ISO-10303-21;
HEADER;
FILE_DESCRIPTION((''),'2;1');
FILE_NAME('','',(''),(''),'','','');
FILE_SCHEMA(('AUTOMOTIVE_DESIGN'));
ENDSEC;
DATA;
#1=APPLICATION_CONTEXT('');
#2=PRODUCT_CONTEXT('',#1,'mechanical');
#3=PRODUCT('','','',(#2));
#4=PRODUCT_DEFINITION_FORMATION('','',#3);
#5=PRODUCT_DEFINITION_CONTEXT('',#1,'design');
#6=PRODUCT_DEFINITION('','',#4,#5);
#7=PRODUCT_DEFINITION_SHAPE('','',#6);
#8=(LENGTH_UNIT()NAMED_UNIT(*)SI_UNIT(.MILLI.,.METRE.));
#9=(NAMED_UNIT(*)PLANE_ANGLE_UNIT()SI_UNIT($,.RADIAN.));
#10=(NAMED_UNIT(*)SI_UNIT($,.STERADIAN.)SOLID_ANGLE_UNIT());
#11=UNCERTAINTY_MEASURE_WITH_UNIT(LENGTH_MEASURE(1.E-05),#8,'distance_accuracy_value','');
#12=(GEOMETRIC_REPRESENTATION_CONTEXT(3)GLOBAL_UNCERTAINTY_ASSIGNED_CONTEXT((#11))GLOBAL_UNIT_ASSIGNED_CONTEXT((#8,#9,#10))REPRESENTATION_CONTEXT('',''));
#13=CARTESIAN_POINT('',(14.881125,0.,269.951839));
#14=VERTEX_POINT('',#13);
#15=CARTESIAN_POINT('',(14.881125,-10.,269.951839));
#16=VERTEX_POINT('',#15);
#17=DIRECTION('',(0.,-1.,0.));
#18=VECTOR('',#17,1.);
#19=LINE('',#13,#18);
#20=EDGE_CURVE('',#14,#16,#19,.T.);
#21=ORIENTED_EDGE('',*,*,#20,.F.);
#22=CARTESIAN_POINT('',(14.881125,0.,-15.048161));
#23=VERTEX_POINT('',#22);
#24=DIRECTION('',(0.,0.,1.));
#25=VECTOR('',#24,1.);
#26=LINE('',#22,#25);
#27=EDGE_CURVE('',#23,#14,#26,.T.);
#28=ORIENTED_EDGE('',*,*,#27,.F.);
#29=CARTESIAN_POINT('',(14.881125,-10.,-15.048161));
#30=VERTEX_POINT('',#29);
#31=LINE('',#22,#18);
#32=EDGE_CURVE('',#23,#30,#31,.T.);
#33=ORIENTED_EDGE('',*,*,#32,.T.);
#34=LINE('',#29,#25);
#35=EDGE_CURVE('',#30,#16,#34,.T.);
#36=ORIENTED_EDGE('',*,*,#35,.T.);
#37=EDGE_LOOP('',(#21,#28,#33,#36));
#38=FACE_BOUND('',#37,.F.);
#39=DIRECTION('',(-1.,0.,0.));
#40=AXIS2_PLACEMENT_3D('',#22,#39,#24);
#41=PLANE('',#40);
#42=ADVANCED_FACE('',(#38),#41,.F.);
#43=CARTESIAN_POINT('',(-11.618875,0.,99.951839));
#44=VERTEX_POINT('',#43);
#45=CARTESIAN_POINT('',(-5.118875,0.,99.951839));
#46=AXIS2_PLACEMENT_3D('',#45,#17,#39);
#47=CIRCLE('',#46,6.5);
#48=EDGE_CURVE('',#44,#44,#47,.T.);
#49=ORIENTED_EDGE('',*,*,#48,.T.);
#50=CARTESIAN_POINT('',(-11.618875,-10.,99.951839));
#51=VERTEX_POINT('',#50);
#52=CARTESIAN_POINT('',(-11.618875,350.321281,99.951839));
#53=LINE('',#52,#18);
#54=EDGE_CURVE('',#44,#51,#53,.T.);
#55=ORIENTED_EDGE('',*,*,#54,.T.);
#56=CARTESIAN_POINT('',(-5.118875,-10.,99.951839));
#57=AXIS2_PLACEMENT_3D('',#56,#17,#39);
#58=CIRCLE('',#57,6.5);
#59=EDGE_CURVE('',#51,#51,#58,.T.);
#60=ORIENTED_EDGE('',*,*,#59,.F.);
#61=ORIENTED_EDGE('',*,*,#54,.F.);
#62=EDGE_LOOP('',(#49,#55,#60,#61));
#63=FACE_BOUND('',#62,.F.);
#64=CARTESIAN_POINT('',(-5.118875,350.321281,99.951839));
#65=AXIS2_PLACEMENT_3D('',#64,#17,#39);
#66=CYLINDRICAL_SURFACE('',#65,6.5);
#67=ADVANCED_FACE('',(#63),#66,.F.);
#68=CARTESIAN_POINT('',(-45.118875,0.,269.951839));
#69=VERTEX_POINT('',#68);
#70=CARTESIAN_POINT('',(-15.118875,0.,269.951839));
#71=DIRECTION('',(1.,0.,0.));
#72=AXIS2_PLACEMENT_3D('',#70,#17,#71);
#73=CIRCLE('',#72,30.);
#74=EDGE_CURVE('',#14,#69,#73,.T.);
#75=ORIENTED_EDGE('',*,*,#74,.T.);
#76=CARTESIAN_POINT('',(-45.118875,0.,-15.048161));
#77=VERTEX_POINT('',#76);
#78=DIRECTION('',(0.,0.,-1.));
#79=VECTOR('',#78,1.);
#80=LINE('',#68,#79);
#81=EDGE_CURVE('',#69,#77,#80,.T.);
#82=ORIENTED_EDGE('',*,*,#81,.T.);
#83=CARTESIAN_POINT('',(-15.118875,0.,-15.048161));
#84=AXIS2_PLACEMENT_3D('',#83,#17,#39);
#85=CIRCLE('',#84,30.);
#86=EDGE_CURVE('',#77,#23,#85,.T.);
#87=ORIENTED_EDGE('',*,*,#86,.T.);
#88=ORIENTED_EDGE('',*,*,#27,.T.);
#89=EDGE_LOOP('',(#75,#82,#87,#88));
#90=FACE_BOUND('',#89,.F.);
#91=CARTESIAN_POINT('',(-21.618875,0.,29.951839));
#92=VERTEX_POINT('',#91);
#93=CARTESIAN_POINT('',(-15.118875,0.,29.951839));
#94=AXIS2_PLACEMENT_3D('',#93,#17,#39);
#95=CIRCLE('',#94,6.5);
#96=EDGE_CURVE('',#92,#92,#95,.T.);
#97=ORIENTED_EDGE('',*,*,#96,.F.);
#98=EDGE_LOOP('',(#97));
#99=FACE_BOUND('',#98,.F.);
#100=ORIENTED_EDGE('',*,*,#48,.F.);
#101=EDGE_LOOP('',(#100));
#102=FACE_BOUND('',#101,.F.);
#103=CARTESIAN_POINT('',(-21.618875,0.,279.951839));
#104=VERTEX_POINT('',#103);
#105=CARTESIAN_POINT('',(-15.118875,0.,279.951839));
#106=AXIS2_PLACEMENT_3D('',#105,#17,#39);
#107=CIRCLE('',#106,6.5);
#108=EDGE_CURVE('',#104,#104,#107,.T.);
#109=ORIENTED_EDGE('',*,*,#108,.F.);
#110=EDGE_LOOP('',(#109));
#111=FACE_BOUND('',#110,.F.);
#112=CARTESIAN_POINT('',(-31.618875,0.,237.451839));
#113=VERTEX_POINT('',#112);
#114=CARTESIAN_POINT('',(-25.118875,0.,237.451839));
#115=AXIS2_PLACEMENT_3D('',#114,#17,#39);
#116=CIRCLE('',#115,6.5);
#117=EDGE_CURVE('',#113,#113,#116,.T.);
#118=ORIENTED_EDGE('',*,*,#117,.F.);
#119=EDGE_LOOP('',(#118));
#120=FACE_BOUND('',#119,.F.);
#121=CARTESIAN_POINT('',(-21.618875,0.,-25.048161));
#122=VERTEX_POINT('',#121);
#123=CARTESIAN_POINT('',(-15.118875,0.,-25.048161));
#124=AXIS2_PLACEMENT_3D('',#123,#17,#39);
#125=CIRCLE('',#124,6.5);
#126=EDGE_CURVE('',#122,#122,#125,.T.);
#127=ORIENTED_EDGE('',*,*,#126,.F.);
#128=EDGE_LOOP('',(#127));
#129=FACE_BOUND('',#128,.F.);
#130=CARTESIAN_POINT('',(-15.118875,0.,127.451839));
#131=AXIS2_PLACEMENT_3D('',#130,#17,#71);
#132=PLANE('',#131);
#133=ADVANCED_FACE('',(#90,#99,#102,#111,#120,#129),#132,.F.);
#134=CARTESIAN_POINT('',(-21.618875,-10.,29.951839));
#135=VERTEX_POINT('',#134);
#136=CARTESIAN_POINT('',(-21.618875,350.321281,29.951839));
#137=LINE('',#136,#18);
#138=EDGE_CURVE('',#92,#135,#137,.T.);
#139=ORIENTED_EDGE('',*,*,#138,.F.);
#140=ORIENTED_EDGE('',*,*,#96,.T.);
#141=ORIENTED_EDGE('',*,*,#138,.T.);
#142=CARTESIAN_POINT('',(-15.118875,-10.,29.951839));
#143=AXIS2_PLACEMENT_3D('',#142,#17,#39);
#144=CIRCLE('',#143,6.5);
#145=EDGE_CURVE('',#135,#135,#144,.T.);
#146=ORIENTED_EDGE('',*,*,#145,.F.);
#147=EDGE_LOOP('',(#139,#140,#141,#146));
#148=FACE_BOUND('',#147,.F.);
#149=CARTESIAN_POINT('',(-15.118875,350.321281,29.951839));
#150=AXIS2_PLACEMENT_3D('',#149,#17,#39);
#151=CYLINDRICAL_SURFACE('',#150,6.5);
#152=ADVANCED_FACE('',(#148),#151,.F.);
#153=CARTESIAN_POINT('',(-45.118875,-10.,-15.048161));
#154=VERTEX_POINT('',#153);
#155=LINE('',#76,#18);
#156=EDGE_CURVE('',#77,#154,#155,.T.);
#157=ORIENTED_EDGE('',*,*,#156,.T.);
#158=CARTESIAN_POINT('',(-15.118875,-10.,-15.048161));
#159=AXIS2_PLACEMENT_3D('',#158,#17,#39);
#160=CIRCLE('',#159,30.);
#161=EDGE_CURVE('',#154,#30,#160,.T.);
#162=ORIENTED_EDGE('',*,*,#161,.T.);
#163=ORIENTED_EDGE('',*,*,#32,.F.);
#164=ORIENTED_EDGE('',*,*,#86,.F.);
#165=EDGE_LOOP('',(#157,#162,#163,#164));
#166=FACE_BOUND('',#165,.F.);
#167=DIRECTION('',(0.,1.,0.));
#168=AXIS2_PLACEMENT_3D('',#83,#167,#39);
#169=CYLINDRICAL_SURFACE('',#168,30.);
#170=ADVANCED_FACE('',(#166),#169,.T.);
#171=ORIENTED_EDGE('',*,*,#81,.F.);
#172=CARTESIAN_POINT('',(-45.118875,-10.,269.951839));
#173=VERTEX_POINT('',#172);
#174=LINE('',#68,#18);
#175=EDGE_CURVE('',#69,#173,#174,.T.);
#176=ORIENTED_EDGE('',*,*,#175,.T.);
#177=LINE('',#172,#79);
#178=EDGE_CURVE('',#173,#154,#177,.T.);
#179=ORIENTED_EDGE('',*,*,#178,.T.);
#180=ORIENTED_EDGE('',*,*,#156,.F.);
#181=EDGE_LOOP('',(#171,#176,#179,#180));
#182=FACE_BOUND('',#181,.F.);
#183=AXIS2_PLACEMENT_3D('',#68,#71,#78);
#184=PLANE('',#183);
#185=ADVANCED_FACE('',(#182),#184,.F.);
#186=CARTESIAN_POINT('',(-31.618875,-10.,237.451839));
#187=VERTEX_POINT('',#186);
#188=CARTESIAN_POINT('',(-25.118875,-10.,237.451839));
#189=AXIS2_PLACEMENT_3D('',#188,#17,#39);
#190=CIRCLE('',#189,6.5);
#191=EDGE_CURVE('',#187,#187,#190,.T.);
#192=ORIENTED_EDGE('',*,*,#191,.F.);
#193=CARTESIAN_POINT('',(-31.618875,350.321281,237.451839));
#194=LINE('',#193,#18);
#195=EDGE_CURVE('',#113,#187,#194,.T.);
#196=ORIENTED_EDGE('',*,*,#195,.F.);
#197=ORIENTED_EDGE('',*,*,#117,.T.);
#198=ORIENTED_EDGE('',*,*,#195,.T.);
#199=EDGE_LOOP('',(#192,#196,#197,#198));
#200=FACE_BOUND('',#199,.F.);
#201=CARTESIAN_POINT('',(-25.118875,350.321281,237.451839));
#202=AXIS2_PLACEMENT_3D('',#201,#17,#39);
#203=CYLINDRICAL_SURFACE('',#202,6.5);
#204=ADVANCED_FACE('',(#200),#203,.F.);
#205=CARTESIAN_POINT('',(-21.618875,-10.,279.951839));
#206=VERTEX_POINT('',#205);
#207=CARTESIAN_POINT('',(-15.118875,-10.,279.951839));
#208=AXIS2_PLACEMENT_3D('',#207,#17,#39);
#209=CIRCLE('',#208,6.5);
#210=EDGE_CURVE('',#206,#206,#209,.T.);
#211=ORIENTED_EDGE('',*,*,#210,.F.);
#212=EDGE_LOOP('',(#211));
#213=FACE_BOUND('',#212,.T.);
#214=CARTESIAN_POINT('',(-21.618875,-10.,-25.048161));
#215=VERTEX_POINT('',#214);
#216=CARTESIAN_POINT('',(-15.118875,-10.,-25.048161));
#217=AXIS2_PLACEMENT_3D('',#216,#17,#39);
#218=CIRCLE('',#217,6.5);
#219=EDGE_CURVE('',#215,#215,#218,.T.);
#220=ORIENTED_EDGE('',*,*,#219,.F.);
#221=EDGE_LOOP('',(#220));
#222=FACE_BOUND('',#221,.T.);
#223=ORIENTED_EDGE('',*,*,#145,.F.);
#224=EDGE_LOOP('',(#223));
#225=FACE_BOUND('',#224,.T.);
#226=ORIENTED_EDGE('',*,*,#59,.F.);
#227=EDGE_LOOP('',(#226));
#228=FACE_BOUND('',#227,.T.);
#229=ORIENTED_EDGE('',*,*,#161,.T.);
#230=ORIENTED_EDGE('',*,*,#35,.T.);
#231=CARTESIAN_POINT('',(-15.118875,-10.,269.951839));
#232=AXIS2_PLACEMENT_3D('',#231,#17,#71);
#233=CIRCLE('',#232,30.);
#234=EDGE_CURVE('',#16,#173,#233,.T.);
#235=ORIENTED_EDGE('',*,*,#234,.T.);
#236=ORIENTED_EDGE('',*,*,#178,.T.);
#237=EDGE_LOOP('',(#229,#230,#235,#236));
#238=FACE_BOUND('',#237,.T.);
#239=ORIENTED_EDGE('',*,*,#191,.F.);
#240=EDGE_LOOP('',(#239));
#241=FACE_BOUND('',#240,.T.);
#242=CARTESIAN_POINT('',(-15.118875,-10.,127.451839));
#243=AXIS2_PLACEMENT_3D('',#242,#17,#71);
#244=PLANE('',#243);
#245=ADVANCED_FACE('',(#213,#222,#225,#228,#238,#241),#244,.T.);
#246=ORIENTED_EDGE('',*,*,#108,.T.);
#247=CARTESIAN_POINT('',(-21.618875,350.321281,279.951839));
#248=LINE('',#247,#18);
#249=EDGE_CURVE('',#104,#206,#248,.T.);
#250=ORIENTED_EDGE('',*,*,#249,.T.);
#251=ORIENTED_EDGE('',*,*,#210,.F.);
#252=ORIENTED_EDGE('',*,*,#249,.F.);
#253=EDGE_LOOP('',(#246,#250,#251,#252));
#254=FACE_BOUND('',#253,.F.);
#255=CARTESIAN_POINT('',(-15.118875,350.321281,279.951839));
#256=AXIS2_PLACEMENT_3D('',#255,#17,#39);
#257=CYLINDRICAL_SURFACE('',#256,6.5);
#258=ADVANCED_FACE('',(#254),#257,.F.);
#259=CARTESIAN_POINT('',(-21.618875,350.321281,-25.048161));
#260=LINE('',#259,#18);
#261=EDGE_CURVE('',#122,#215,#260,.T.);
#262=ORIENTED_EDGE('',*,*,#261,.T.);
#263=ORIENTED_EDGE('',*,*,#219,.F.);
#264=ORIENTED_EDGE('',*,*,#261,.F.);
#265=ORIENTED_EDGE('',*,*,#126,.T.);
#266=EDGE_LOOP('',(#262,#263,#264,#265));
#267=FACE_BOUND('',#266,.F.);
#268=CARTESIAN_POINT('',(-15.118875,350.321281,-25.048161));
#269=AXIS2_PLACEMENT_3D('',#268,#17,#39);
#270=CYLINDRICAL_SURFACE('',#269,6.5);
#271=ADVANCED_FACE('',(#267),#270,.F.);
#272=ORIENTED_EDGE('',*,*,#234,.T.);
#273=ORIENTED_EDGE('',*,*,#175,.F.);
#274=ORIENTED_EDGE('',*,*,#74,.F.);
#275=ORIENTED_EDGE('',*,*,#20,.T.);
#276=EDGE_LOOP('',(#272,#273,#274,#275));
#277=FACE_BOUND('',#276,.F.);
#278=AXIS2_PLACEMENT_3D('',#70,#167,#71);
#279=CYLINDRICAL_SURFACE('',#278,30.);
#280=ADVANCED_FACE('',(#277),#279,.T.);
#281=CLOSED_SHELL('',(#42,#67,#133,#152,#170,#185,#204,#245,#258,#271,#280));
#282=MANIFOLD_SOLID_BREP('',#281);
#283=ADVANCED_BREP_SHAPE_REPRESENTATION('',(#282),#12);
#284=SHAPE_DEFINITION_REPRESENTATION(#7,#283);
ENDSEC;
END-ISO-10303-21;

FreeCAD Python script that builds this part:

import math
import FreeCAD as App
import Part
import Sketcher

doc = App.newDocument("Part")
body = doc.addObject("PartDesign::Body", "Body")

# Sketch on XZ plane
sketch1 = body.newObject("Sketcher::SketchObject", "Sketch")
sketch1.AttachmentSupport = (doc.getObject("XZ_Plane"), [""])
sketch1.MapMode = "FlatFace"
sketch1.addGeometry([
    Part.ArcOfCircle(Part.Circle(App.Vector(-15, 270, 0), App.Vector(0, 0, 1), 30), math.radians(0), math.radians(180)),
    Part.LineSegment(App.Vector(-45, 270, 0), App.Vector(-45, -15, 0)),
    Part.ArcOfCircle(Part.Circle(App.Vector(-15, -15, 0), App.Vector(0, 0, 1), 30), math.radians(180), math.radians(360)),
    Part.LineSegment(App.Vector(15, -15, 0), App.Vector(15, 270, 0)),
], False)
sketch1.addConstraint([
    Sketcher.Constraint("Tangent", 0, 2, 1, 1),
    Sketcher.Constraint("Tangent", 1, 2, 2, 1),
    Sketcher.Constraint("Tangent", 2, 2, 3, 1),
    Sketcher.Constraint("Tangent", 3, 2, 0, 1),
    Sketcher.Constraint("Vertical", 1),
    Sketcher.Constraint("Vertical", 3),
    Sketcher.Constraint("Radius", 0, 30.0),
    Sketcher.Constraint("DistanceY", 1, 2, 1, 1, 285.0),
    Sketcher.Constraint("DistanceY", -1, 1, 0, 3, 269.951839),
    Sketcher.Constraint("DistanceX", 0, 3, -1, 1, 15.118875),
])
pad1 = body.newObject("PartDesign::Pad", "Pad")
pad1.Profile = sketch1
pad1.Length = 10

# Sketch on XZ plane
sketch2 = body.newObject("Sketcher::SketchObject", "Sketch001")
sketch2.AttachmentSupport = (doc.getObject("XZ_Plane"), [""])
sketch2.MapMode = "FlatFace"
sketch2.addGeometry([
    Part.Circle(App.Vector(-15, 30, 0), App.Vector(0, 0, 1), 6),
    Part.Circle(App.Vector(-15, -25, 0), App.Vector(0, 0, 1), 6),
], False)
sketch2.addConstraint([
    Sketcher.Constraint("Equal", 0, 1),
    Sketcher.Constraint("Vertical", 0, 3, 1, 3),
    Sketcher.Constraint("Diameter", 0, 13.0),
    Sketcher.Constraint("DistanceY", 1, 3, 0, 3, 55.0),
    Sketcher.Constraint("DistanceY", -1, 1, 0, 3, 29.951839),
    Sketcher.Constraint("DistanceX", 0, 3, -1, 1, 15.118875),
])
doc.recompute()
hole = body.newObject("PartDesign::Hole", "Hole")
hole.Profile = sketch2
hole.ThreadType = "None"
hole.Diameter = 13
hole.DepthType = "ThroughAll"
hole.Reversed = True

# Sketch on XZ plane
sketch3 = body.newObject("Sketcher::SketchObject", "Sketch002")
sketch3.AttachmentSupport = (doc.getObject("XZ_Plane"), [""])
sketch3.MapMode = "FlatFace"
sketch3.addGeometry(Part.Circle(App.Vector(-15, 280, 0), App.Vector(0, 0, 1), 6), False)
sketch3.addConstraint([
    Sketcher.Constraint("Diameter", 0, 13.0),
    Sketcher.Constraint("DistanceY", -1, 1, 0, 3, 279.951839),
    Sketcher.Constraint("DistanceX", 0, 3, -1, 1, 15.118875),
])
doc.recompute()
hole2 = body.newObject("PartDesign::Hole", "Hole001")
hole2.Profile = sketch3
hole2.ThreadType = "None"
hole2.Diameter = 13
hole2.DepthType = "ThroughAll"
hole2.Reversed = True

# Sketch on XZ plane
sketch4 = body.newObject("Sketcher::SketchObject", "Sketch003")
sketch4.AttachmentSupport = (doc.getObject("XZ_Plane"), [""])
sketch4.MapMode = "FlatFace"
sketch4.addGeometry([
    Part.Circle(App.Vector(-25, 237, 0), App.Vector(0, 0, 1), 6),
    Part.Circle(App.Vector(-5, 100, 0), App.Vector(0, 0, 1), 6),
], False)
sketch4.addConstraint([
    Sketcher.Constraint("Equal", 0, 1),
    Sketcher.Constraint("Diameter", 0, 13.0),
    Sketcher.Constraint("DistanceX", 0, 3, 1, 3, 20.0),
    Sketcher.Constraint("DistanceY", 1, 3, 0, 3, 137.5),
    Sketcher.Constraint("DistanceY", -1, 1, 0, 3, 237.451839),
    Sketcher.Constraint("DistanceX", 0, 3, -1, 1, 25.118875),
])
doc.recompute()
hole3 = body.newObject("PartDesign::Hole", "Hole002")
hole3.Profile = sketch4
hole3.ThreadType = "None"
hole3.Diameter = 13
hole3.DepthType = "ThroughAll"
hole3.Reversed = True

doc.recompute()
